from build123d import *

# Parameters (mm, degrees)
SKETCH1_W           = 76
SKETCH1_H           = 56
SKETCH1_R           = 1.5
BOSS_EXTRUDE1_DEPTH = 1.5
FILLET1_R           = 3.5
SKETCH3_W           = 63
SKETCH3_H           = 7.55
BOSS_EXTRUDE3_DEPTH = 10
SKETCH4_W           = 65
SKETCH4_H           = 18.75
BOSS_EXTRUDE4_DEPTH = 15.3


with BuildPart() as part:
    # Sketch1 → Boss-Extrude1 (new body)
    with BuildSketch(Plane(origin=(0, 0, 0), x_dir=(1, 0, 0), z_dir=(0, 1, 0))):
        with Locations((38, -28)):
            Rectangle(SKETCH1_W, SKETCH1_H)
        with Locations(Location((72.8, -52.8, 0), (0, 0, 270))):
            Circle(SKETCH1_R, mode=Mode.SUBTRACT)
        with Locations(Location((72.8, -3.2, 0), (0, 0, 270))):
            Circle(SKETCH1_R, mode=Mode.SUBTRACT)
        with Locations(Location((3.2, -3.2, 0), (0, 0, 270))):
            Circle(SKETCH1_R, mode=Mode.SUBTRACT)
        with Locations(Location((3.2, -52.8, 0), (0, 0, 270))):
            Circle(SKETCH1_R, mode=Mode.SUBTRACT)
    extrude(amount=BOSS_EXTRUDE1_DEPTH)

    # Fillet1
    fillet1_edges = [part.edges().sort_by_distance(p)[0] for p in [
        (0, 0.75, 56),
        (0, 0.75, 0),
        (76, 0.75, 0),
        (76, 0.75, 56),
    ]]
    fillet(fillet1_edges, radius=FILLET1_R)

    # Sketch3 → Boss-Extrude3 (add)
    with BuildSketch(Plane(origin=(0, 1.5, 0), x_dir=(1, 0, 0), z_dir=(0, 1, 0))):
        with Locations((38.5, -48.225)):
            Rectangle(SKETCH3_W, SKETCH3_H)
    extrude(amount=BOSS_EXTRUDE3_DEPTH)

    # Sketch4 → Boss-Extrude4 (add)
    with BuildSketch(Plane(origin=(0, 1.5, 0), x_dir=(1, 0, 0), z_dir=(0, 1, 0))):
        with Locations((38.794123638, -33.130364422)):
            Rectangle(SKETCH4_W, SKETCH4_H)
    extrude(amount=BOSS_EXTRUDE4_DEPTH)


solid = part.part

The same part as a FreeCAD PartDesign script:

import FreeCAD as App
import Part
import Sketcher
Q = App.Units.Quantity


def edges_at(feature, points):
    """Names of the edges that pass closest to the given points."""
    edges = feature.Shape.Edges
    near = lambda p: min(range(len(edges)), key=lambda i: edges[i].distToShape(Part.Vertex(*p))[0])
    return sorted({f"Edge{near(p) + 1}" for p in points})

doc = App.newDocument("Part")
body = doc.addObject("PartDesign::Body", "Body")

sketch1 = body.newObject("Sketcher::SketchObject", "Sketch")
sketch1.AttachmentSupport = (doc.getObject("XZ_Plane"), [""])
sketch1.MapMode = "FlatFace"
sketch1.addGeometry(Part.LineSegment(App.Vector(0, 0, 0), App.Vector(0, 56, 0)), False)
sketch1.addGeometry(Part.LineSegment(App.Vector(0, 56, 0), App.Vector(76, 56, 0)), False)
sketch1.addGeometry(Part.LineSegment(App.Vector(76, 56, 0), App.Vector(76, 0, 0)), False)
sketch1.addGeometry(Part.LineSegment(App.Vector(76, 0, 0), App.Vector(0, 0, 0)), False)
sketch1.addGeometry(Part.Circle(App.Vector(3.2, 52.8, 0), App.Vector(0, 0, 1), 1.5), False)
sketch1.addGeometry(Part.Circle(App.Vector(72.8, 52.8, 0), App.Vector(0, 0, 1), 1.5), False)
sketch1.addGeometry(Part.Circle(App.Vector(3.2, 3.2, 0), App.Vector(0, 0, 1), 1.5), False)
sketch1.addGeometry(Part.Circle(App.Vector(72.8, 3.2, 0), App.Vector(0, 0, 1), 1.5), False)
sketch1.addConstraint(Sketcher.Constraint("Coincident", 0, 2, 1, 1))
sketch1.addConstraint(Sketcher.Constraint("Coincident", 1, 2, 2, 1))
sketch1.addConstraint(Sketcher.Constraint("Coincident", 2, 2, 3, 1))
sketch1.addConstraint(Sketcher.Constraint("Coincident", 3, 2, 0, 1))
sketch1.addConstraint(Sketcher.Constraint("Vertical", 0))
sketch1.addConstraint(Sketcher.Constraint("Horizontal", 1))
sketch1.addConstraint(Sketcher.Constraint("Vertical", 2))
sketch1.addConstraint(Sketcher.Constraint("Horizontal", 3))
sketch1.addConstraint(Sketcher.Constraint("Coincident", 3, 2, -1, 1))
sketch1.addConstraint(Sketcher.Constraint("Equal", 4, 5))
sketch1.addConstraint(Sketcher.Constraint("Equal", 5, 6))
sketch1.addConstraint(Sketcher.Constraint("Equal", 6, 7))
sketch1.addConstraint(Sketcher.Constraint("Horizontal", 4, 3, 5, 3))
sketch1.addConstraint(Sketcher.Constraint("Horizontal", 6, 3, 7, 3))
sketch1.addConstraint(Sketcher.Constraint("Vertical", 4, 3, 6, 3))
sketch1.addConstraint(Sketcher.Constraint("Vertical", 5, 3, 7, 3))
sketch1.addConstraint(Sketcher.Constraint("Diameter", 4, Q("3 mm")))
sketch1.addConstraint(Sketcher.Constraint("DistanceX", 1, 1, 1, 2, Q("76 mm")))
sketch1.addConstraint(Sketcher.Constraint("DistanceY", 0, 1, 0, 2, Q("56 mm")))
sketch1.addConstraint(Sketcher.Constraint("DistanceX", -1, 1, 4, 3, Q("3.2 mm")))
sketch1.addConstraint(Sketcher.Constraint("DistanceY", -1, 1, 4, 3, Q("52.8 mm")))
sketch1.addConstraint(Sketcher.Constraint("DistanceX", -1, 1, 5, 3, Q("72.8 mm")))
sketch1.addConstraint(Sketcher.Constraint("DistanceY", -1, 1, 6, 3, Q("3.2 mm")))
pad1 = body.newObject("PartDesign::Pad", "Pad")
pad1.Profile = sketch1
pad1.Length = 1.5
pad1.Reversed = True
doc.recompute()

fillet = body.newObject("PartDesign::Fillet", "Fillet")
fillet.Base = (pad1, edges_at(pad1, [
    (0, 0.75, 56),
    (0, 0.75, 0),
    (76, 0.75, 0),
    (76, 0.75, 56),
]))
fillet.Radius = 3.5

sketch2 = body.newObject("Sketcher::SketchObject", "Sketch001")
sketch2.AttachmentSupport = (doc.getObject("XZ_Plane"), [""])
sketch2.MapMode = "FlatFace"
sketch2.AttachmentOffset = App.Placement(App.Vector(0, 0, -1.5), App.Rotation())
sketch2.addGeometry(Part.LineSegment(App.Vector(7, 44, 0), App.Vector(7, 52, 0)), False)
sketch2.addGeometry(Part.LineSegment(App.Vector(7, 52, 0), App.Vector(70, 52, 0)), False)
sketch2.addGeometry(Part.LineSegment(App.Vector(70, 52, 0), App.Vector(70, 44, 0)), False)
sketch2.addGeometry(Part.LineSegment(App.Vector(70, 44, 0), App.Vector(7, 44, 0)), False)
sketch2.addConstraint(Sketcher.Constraint("Coincident", 0, 2, 1, 1))
sketch2.addConstraint(Sketcher.Constraint("Coincident", 1, 2, 2, 1))
sketch2.addConstraint(Sketcher.Constraint("Coincident", 2, 2, 3, 1))
sketch2.addConstraint(Sketcher.Constraint("Coincident", 3, 2, 0, 1))
sketch2.addConstraint(Sketcher.Constraint("Vertical", 0))
sketch2.addConstraint(Sketcher.Constraint("Horizontal", 1))
sketch2.addConstraint(Sketcher.Constraint("Vertical", 2))
sketch2.addConstraint(Sketcher.Constraint("Horizontal", 3))
sketch2.addConstraint(Sketcher.Constraint("DistanceX", 1, 1, 1, 2, Q("63 mm")))
sketch2.addConstraint(Sketcher.Constraint("DistanceX", -1, 1, 0, 2, Q("7 mm")))
sketch2.addConstraint(Sketcher.Constraint("DistanceY", -1, 1, 0, 2, Q("52 mm")))
sketch2.addConstraint(Sketcher.Constraint("DistanceY", 0, 1, 0, 2, Q("7.55 mm")))
pad2 = body.newObject("PartDesign::Pad", "Pad001")
pad2.Profile = sketch2
pad2.Length = 10
pad2.Reversed = True

sketch3 = body.newObject("Sketcher::SketchObject", "Sketch002")
sketch3.AttachmentSupport = (doc.getObject("XZ_Plane"), [""])
sketch3.MapMode = "FlatFace"
sketch3.AttachmentOffset = App.Placement(App.Vector(0, 0, -1.5), App.Rotation())
sketch3.addGeometry(Part.LineSegment(App.Vector(6, 24, 0), App.Vector(6, 43, 0)), False)
sketch3.addGeometry(Part.LineSegment(App.Vector(6, 43, 0), App.Vector(71, 43, 0)), False)
sketch3.addGeometry(Part.LineSegment(App.Vector(71, 43, 0), App.Vector(71, 24, 0)), False)
sketch3.addGeometry(Part.LineSegment(App.Vector(71, 24, 0), App.Vector(6, 24, 0)), False)
sketch3.addConstraint(Sketcher.Constraint("Coincident", 0, 2, 1, 1))
sketch3.addConstraint(Sketcher.Constraint("Coincident", 1, 2, 2, 1))
sketch3.addConstraint(Sketcher.Constraint("Coincident", 2, 2, 3, 1))
sketch3.addConstraint(Sketcher.Constraint("Coincident", 3, 2, 0, 1))
sketch3.addConstraint(Sketcher.Constraint("Vertical", 0))
sketch3.addConstraint(Sketcher.Constraint("Horizontal", 1))
sketch3.addConstraint(Sketcher.Constraint("Vertical", 2))
sketch3.addConstraint(Sketcher.Constraint("Horizontal", 3))
sketch3.addConstraint(Sketcher.Constraint("DistanceX", 1, 1, 1, 2, Q("65 mm")))
sketch3.addConstraint(Sketcher.Constraint("DistanceY", 0, 1, 0, 2, Q("18.75 mm")))
sketch3.addConstraint(Sketcher.Constraint("DistanceX", -1, 1, 0, 2, Q("6.294124 mm")))
sketch3.addConstraint(Sketcher.Constraint("DistanceY", -1, 1, 0, 2, Q("42.505364 mm")))
pad3 = body.newObject("PartDesign::Pad", "Pad002")
pad3.Profile = sketch3
pad3.Length = 15.3
pad3.Reversed = True

doc.recompute()
